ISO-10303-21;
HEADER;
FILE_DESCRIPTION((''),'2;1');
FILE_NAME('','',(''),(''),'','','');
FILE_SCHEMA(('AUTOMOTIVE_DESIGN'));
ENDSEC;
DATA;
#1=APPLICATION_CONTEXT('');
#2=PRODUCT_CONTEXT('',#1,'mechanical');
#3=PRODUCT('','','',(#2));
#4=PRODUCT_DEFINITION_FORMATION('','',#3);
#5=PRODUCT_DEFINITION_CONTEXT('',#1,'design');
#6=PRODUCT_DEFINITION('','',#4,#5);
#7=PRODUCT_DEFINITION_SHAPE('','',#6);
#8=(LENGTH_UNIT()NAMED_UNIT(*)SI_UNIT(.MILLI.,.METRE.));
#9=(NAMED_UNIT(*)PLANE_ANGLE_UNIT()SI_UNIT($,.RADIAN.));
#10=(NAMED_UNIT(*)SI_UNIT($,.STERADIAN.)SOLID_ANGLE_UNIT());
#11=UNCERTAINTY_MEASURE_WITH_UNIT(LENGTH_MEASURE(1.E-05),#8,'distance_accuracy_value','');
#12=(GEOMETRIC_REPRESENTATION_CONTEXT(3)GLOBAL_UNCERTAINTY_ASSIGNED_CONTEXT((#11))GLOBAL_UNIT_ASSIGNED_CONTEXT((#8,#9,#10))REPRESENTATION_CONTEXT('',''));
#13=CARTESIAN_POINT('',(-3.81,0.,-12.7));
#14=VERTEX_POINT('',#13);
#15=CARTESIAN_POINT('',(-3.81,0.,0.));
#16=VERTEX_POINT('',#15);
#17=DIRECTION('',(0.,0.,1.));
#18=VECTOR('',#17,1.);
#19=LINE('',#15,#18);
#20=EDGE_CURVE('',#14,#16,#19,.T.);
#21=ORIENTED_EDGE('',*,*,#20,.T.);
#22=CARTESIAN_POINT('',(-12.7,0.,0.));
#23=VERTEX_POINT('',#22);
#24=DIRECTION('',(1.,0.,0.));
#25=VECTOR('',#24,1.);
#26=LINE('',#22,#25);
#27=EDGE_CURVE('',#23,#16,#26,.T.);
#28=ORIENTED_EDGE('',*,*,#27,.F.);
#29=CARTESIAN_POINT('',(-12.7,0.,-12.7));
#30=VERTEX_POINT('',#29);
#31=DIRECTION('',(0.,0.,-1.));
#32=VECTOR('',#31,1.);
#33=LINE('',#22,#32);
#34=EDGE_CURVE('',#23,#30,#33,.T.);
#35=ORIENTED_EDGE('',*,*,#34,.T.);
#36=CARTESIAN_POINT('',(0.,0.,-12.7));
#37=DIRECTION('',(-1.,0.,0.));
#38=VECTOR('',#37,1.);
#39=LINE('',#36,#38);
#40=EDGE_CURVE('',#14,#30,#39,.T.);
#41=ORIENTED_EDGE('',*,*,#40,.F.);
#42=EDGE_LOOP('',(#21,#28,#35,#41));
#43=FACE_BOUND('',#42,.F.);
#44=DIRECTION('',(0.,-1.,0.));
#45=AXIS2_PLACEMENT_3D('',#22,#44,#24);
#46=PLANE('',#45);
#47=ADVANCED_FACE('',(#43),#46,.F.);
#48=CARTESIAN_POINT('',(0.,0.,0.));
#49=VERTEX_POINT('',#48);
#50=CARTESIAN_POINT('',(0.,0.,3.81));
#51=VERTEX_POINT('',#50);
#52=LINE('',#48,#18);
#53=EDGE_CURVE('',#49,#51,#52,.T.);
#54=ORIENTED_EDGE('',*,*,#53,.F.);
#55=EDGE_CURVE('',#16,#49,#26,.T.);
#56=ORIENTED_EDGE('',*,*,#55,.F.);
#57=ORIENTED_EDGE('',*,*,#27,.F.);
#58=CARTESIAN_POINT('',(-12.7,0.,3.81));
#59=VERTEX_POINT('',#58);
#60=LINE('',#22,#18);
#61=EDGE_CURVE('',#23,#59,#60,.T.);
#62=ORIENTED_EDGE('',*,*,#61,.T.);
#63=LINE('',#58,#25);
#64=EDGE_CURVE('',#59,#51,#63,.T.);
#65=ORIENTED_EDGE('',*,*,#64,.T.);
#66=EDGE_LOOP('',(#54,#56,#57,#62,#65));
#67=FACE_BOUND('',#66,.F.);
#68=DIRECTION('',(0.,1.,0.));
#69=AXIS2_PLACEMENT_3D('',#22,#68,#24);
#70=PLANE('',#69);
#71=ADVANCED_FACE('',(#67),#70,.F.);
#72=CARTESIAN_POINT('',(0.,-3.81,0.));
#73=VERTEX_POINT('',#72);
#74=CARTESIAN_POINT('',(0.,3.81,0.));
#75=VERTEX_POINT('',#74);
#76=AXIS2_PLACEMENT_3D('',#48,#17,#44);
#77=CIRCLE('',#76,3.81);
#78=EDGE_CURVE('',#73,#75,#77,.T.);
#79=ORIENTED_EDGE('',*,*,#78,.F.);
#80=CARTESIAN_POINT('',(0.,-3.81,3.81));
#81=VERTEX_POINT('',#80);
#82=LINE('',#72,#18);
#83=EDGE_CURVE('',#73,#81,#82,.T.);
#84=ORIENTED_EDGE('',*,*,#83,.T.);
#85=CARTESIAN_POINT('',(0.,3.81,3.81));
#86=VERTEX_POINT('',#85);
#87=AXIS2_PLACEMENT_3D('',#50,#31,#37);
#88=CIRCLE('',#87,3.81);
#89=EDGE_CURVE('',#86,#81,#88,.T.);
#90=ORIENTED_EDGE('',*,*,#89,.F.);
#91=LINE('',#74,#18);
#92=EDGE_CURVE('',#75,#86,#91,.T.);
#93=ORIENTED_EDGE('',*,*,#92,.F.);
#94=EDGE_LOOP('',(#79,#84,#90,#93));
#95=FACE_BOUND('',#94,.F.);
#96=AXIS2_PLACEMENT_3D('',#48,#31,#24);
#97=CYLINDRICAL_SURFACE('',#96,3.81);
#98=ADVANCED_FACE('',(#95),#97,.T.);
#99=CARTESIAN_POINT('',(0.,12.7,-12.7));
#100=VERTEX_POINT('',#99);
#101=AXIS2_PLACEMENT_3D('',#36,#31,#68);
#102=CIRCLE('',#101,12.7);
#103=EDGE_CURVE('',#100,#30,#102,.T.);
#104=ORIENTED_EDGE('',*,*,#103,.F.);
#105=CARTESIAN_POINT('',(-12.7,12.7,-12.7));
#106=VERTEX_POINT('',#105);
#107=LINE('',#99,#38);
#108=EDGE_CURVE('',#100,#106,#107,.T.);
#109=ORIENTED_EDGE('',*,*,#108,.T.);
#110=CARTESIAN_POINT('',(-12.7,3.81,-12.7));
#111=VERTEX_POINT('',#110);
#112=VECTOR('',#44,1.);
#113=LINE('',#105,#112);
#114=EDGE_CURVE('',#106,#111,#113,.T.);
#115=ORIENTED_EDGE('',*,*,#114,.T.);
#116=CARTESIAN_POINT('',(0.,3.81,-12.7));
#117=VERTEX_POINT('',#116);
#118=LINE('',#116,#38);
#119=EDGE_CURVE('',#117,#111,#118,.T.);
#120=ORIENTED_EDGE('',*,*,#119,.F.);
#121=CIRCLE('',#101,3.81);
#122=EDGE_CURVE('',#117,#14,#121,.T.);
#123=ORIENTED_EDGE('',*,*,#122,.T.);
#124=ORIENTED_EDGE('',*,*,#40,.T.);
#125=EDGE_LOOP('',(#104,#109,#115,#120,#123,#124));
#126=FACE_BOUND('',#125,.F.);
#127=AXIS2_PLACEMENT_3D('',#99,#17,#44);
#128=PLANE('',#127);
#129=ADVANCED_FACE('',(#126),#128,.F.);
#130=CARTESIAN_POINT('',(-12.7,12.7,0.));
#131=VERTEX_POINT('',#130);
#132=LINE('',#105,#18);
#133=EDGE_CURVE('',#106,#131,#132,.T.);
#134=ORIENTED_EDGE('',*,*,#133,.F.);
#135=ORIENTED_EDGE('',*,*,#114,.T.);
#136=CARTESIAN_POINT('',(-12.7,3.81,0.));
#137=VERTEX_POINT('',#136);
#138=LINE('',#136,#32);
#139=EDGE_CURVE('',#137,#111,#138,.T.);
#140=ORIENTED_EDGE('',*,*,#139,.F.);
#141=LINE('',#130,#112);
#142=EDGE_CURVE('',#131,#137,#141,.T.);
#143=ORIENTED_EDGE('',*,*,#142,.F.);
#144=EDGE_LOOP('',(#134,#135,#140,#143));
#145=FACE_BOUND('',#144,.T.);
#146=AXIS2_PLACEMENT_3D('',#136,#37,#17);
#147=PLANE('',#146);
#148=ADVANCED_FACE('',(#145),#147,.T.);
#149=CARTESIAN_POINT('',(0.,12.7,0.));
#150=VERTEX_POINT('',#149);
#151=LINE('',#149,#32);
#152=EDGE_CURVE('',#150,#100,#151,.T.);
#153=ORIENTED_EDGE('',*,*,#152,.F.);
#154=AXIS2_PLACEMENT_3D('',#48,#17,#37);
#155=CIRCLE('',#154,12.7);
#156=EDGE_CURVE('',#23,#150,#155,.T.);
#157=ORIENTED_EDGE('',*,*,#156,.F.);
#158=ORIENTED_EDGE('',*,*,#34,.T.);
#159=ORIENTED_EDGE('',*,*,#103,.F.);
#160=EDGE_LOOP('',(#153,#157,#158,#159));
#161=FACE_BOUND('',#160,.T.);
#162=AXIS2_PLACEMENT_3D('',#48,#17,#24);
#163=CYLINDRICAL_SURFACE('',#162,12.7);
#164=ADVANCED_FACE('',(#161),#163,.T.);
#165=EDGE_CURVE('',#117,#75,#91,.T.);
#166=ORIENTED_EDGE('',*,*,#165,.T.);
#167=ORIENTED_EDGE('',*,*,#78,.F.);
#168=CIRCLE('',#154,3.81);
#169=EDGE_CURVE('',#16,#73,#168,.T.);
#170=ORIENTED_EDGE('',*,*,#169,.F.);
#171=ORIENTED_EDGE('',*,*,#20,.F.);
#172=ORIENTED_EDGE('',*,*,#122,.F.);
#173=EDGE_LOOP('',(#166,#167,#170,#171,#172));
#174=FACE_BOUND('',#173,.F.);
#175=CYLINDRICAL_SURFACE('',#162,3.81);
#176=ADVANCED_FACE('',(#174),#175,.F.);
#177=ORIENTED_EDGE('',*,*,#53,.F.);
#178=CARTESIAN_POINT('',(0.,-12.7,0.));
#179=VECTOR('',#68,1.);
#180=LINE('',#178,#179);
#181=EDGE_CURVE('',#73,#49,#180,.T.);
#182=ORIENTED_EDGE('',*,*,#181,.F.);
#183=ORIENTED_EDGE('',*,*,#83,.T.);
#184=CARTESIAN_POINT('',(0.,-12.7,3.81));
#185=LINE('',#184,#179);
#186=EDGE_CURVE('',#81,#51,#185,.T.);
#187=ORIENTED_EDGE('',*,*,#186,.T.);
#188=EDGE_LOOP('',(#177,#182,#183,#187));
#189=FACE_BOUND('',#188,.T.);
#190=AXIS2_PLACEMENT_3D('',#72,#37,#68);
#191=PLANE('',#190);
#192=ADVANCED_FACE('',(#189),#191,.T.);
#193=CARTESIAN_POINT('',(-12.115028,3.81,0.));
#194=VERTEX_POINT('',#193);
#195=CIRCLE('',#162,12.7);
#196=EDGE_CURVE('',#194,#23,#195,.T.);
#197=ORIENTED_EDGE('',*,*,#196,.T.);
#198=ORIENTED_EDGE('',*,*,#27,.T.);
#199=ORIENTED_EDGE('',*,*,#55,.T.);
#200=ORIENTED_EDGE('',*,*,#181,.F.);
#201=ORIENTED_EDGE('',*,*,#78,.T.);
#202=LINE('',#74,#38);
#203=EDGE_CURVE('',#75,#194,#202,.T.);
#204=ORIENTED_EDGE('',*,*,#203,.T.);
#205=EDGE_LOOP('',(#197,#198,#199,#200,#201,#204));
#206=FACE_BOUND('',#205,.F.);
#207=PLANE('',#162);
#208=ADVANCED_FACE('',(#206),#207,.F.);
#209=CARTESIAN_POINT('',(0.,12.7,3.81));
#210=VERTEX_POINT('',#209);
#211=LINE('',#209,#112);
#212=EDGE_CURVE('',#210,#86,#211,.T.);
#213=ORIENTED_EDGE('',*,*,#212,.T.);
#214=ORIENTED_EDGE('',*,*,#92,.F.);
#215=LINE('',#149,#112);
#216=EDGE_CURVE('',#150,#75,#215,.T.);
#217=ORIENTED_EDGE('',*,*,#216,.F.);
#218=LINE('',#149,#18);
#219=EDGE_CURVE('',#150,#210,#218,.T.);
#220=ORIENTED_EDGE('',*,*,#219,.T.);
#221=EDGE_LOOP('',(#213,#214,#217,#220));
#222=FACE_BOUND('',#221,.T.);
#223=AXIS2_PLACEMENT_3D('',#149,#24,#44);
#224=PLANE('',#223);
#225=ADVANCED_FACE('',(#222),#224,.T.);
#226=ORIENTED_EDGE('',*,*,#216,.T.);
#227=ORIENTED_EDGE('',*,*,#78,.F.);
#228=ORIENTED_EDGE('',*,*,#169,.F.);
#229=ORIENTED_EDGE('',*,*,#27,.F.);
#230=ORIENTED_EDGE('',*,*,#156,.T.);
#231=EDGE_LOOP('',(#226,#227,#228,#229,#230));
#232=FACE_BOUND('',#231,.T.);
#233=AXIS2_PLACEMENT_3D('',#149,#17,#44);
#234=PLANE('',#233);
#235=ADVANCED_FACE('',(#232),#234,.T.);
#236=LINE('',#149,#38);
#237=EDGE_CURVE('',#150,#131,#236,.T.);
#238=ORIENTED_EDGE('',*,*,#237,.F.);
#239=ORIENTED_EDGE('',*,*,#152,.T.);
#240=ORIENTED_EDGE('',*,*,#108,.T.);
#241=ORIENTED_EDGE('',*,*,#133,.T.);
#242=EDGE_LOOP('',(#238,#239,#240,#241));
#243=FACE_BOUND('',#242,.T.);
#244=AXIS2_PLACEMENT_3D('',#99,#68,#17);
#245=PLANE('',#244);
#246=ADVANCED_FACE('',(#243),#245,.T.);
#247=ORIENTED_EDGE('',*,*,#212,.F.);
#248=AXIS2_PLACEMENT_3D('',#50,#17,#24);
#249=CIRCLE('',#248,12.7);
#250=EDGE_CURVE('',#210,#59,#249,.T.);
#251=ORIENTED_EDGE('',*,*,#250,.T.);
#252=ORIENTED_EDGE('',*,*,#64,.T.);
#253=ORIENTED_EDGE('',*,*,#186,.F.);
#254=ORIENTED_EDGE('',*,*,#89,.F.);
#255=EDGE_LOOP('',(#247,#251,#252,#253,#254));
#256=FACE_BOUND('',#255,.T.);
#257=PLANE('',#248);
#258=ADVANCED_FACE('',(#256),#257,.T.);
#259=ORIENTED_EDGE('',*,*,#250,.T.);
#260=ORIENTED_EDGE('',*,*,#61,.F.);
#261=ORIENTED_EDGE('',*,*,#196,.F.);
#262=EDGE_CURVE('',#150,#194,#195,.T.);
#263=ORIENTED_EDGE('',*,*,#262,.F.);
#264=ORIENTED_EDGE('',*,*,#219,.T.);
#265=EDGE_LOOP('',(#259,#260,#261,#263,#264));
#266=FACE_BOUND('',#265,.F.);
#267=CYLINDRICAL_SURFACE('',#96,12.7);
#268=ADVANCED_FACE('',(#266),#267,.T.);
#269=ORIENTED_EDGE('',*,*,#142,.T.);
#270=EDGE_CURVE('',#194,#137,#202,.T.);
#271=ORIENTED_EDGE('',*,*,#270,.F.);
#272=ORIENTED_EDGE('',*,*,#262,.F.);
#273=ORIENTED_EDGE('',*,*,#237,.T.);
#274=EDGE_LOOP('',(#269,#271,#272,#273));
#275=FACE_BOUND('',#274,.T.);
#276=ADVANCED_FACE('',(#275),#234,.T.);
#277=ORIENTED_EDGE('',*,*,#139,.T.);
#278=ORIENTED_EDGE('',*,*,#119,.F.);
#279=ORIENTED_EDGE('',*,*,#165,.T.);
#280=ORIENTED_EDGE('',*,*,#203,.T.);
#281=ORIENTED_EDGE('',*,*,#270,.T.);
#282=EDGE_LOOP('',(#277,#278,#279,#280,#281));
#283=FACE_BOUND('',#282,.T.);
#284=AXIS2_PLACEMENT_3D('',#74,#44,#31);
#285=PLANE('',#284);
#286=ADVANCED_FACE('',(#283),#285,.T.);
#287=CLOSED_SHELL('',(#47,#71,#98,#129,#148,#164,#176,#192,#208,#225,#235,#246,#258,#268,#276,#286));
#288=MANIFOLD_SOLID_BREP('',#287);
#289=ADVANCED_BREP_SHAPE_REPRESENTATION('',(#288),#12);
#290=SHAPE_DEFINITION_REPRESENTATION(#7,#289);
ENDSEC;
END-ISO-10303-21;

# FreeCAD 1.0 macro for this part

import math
import FreeCAD as App
import Part
import Sketcher
Q = App.Units.Quantity


def add_polygon(sketch, points):
    """Adds a closed chain of lines whose ends are joined by coincident constraints."""
    first, n = sketch.GeometryCount, len(points)
    for a, b in zip(points, points[1:] + points[:1]):
        sketch.addGeometry(Part.LineSegment(App.Vector(*a, 0), App.Vector(*b, 0)), False)
    for i in range(n):
        sketch.addConstraint(Sketcher.Constraint("Coincident", first + i, 2, first + (i + 1) % n, 1))

doc = App.newDocument("Part")
body = doc.addObject("PartDesign::Body", "Body")
body.AllowCompound = True

sketch1 = body.newObject("Sketcher::SketchObject", "Sketch")
sketch1.AttachmentSupport = (doc.getObject("XY_Plane"), [""])
sketch1.MapMode = "FlatFace"
sketch1.addGeometry(Part.Circle(App.Vector(0, 0, 0), App.Vector(0, 0, 1), 12.7), False)
sketch1.addGeometry(Part.Circle(App.Vector(0, 0, 0), App.Vector(0, 0, 1), 3.8), False)
sketch1.addConstraint(Sketcher.Constraint("Coincident", 0, 3, -1, 1))
sketch1.addConstraint(Sketcher.Constraint("Coincident", 1, 3, -1, 1))
sketch1.addConstraint(Sketcher.Constraint("Diameter", 0, Q("1 in")))
sketch1.addConstraint(Sketcher.Constraint("Diameter", 1, Q("0.3 in")))
pad1 = body.newObject("PartDesign::Pad", "Pad")
pad1.Profile = sketch1
pad1.Length = Q("0.5 in")
pad1.Reversed = True

sketch2 = body.newObject("Sketcher::SketchObject", "Sketch001")
sketch2.AttachmentSupport = (doc.getObject("XY_Plane"), [""])
sketch2.MapMode = "FlatFace"
sketch2.addGeometry(Part.ArcOfCircle(Part.Circle(App.Vector(0, 0, 0), App.Vector(0, 0, 1), 13), math.radians(90), math.radians(180)), False)
sketch2.addGeometry(Part.LineSegment(App.Vector(-13, 0, 0), App.Vector(0, 0, 0)), False)
sketch2.addGeometry(Part.LineSegment(App.Vector(0, 0, 0), App.Vector(0, 13, 0)), False)
sketch2.addConstraint(Sketcher.Constraint("Coincident", 0, 2, 1, 1))
sketch2.addConstraint(Sketcher.Constraint("Coincident", 1, 2, 2, 1))
sketch2.addConstraint(Sketcher.Constraint("Coincident", 2, 2, 0, 1))
sketch2.addConstraint(Sketcher.Constraint("Horizontal", 1))
sketch2.addConstraint(Sketcher.Constraint("Vertical", 2))
sketch2.addConstraint(Sketcher.Constraint("Coincident", 0, 3, -1, 1))
sketch2.addConstraint(Sketcher.Constraint("Coincident", 1, 2, -1, 1))
sketch2.addConstraint(Sketcher.Constraint("Radius", 0, Q("0.5 in")))
pocket1 = body.newObject("PartDesign::Pocket", "Pocket")
pocket1.Profile = sketch2
pocket1.Length = Q("0.5 in")

sketch3 = body.newObject("Sketcher::SketchObject", "Sketch002")
sketch3.AttachmentSupport = (doc.getObject("YZ_Plane"), [""])
sketch3.MapMode = "FlatFace"
add_polygon(sketch3, [(13, 0), (13, -13), (4, -13), (4, 0)])
sketch3.addConstraint(Sketcher.Constraint("Vertical", 0))
sketch3.addConstraint(Sketcher.Constraint("Horizontal", 1))
sketch3.addConstraint(Sketcher.Constraint("Vertical", 2))
sketch3.addConstraint(Sketcher.Constraint("Horizontal", 3))
sketch3.addConstraint(Sketcher.Constraint("PointOnObject", 2, 2, -1))
sketch3.addConstraint(Sketcher.Constraint("DistanceY", 0, 2, 0, 1, Q("0.5 in")))
sketch3.addConstraint(Sketcher.Constraint("DistanceX", 1, 2, 1, 1, Q("0.35 in")))
sketch3.addConstraint(Sketcher.Constraint("DistanceX", -1, 1, 0, 2, Q("0.5 in")))
pad2 = body.newObject("PartDesign::Pad", "Pad001")
pad2.Profile = sketch3
pad2.Length = Q("0.5 in")
pad2.Reversed = True

sketch4 = body.newObject("Sketcher::SketchObject", "Sketch003")
sketch4.AttachmentSupport = (doc.getObject("XY_Plane"), [""])
sketch4.MapMode = "FlatFace"
sketch4.addGeometry(Part.ArcOfCircle(Part.Circle(App.Vector(0, 0, 0), App.Vector(0, 0, 1), 3.8), math.radians(-90), math.radians(0)), False)
sketch4.addGeometry(Part.LineSegment(App.Vector(3.8, 0, 0), App.Vector(0, 0, 0)), False)
sketch4.addGeometry(Part.LineSegment(App.Vector(0, 0, 0), App.Vector(0, -3.8, 0)), False)
sketch4.addGeometry(Part.LineSegment(App.Vector(0, 0, 0), App.Vector(0, 3.8, 0)), False)
sketch4.addGeometry(Part.ArcOfCircle(Part.Circle(App.Vector(0, 0, 0), App.Vector(0, 0, 1), 3.8), math.radians(90), math.radians(180)), False)
sketch4.addGeometry(Part.LineSegment(App.Vector(-3.8, 0, 0), App.Vector(0, 0, 0)), False)
sketch4.addConstraint(Sketcher.Constraint("Coincident", 0, 2, 1, 1))
sketch4.addConstraint(Sketcher.Constraint("Coincident", 1, 2, 2, 1))
sketch4.addConstraint(Sketcher.Constraint("Coincident", 2, 2, 0, 1))
sketch4.addConstraint(Sketcher.Constraint("Coincident", 3, 2, 4, 1))
sketch4.addConstraint(Sketcher.Constraint("Coincident", 4, 2, 5, 1))
sketch4.addConstraint(Sketcher.Constraint("Coincident", 5, 2, 3, 1))
sketch4.addConstraint(Sketcher.Constraint("Horizontal", 1))
sketch4.addConstraint(Sketcher.Constraint("Vertical", 2))
sketch4.addConstraint(Sketcher.Constraint("Vertical", 3))
sketch4.addConstraint(Sketcher.Constraint("Horizontal", 5))
sketch4.addConstraint(Sketcher.Constraint("Coincident", 0, 3, -1, 1))
sketch4.addConstraint(Sketcher.Constraint("Coincident", 4, 3, -1, 1))
sketch4.addConstraint(Sketcher.Constraint("Coincident", 1, 2, -1, 1))
sketch4.addConstraint(Sketcher.Constraint("Coincident", 5, 2, -1, 1))
sketch4.addConstraint(Sketcher.Constraint("Equal", 0, 4))
sketch4.addConstraint(Sketcher.Constraint("Radius", 0, Q("0.15 in")))
pad3 = body.newObject("PartDesign::Pad", "Pad002")
pad3.Profile = sketch4
pad3.Length = Q("0.15 in")

sketch5 = body.newObject("Sketcher::SketchObject", "Sketch004")
sketch5.AttachmentSupport = (doc.getObject("XY_Plane"), [""])
sketch5.MapMode = "FlatFace"
sketch5.addGeometry(Part.LineSegment(App.Vector(0, 0, 0), App.Vector(3.8, 0, 0)), False)
sketch5.addGeometry(Part.ArcOfCircle(Part.Circle(App.Vector(0, 0, 0), App.Vector(0, 0, 1), 3.8), math.radians(0), math.radians(90)), False)
sketch5.addGeometry(Part.LineSegment(App.Vector(0, 3.8, 0), App.Vector(0, 0, 0)), False)
sketch5.addConstraint(Sketcher.Constraint("Coincident", 0, 2, 1, 1))
sketch5.addConstraint(Sketcher.Constraint("Coincident", 1, 2, 2, 1))
sketch5.addConstraint(Sketcher.Constraint("Coincident", 2, 2, 0, 1))
sketch5.addConstraint(Sketcher.Constraint("Horizontal", 0))
sketch5.addConstraint(Sketcher.Constraint("Vertical", 2))
sketch5.addConstraint(Sketcher.Constraint("Coincident", 1, 3, -1, 1))
sketch5.addConstraint(Sketcher.Constraint("Coincident", 2, 2, -1, 1))
sketch5.addConstraint(Sketcher.Constraint("Radius", 1, Q("0.15 in")))
pad4 = body.newObject("PartDesign::Pad", "Pad003")
pad4.Profile = sketch5
pad4.Length = Q("0.15 in")

sketch6 = body.newObject("Sketcher::SketchObject", "Sketch005")
sketch6.AttachmentSupport = (doc.getObject("XY_Plane"), [""])
sketch6.MapMode = "FlatFace"
sketch6.addGeometry(Part.LineSegment(App.Vector(0, 3.8, 0), App.Vector(0, 12.7, 0)), False)
sketch6.addGeometry(Part.ArcOfCircle(Part.Circle(App.Vector(0, 0, 0), App.Vector(0, 0, 1), 12.7), math.radians(90), math.radians(180)), False)
sketch6.addGeometry(Part.LineSegment(App.Vector(-12.7, 0, 0), App.Vector(-3.8, 0, 0)), False)
sketch6.addGeometry(Part.ArcOfCircle(Part.Circle(App.Vector(0, 0, 0), App.Vector(0, 0, 1), 3.8), math.radians(90), math.radians(180)), False)
sketch6.addConstraint(Sketcher.Constraint("Coincident", 0, 2, 1, 1))
sketch6.addConstraint(Sketcher.Constraint("Coincident", 1, 2, 2, 1))
sketch6.addConstraint(Sketcher.Constraint("Coincident", 2, 2, 3, 2))
sketch6.addConstraint(Sketcher.Constraint("Coincident", 3, 1, 0, 1))
sketch6.addConstraint(Sketcher.Constraint("Vertical", 0))
sketch6.addConstraint(Sketcher.Constraint("Horizontal", 2))
sketch6.addConstraint(Sketcher.Constraint("Coincident", 1, 3, -1, 1))
sketch6.addConstraint(Sketcher.Constraint("Coincident", 3, 3, -1, 1))
sketch6.addConstraint(Sketcher.Constraint("PointOnObject", 0, 2, -2))
sketch6.addConstraint(Sketcher.Constraint("PointOnObject", 1, 2, -1))
sketch6.addConstraint(Sketcher.Constraint("Radius", 1, Q("0.5 in")))
sketch6.addConstraint(Sketcher.Constraint("Radius", 3, Q("0.15 in")))
pad5 = body.newObject("PartDesign::Pad", "Pad004")
pad5.Profile = sketch6
pad5.Length = Q("0.15 in")

doc.recompute()
